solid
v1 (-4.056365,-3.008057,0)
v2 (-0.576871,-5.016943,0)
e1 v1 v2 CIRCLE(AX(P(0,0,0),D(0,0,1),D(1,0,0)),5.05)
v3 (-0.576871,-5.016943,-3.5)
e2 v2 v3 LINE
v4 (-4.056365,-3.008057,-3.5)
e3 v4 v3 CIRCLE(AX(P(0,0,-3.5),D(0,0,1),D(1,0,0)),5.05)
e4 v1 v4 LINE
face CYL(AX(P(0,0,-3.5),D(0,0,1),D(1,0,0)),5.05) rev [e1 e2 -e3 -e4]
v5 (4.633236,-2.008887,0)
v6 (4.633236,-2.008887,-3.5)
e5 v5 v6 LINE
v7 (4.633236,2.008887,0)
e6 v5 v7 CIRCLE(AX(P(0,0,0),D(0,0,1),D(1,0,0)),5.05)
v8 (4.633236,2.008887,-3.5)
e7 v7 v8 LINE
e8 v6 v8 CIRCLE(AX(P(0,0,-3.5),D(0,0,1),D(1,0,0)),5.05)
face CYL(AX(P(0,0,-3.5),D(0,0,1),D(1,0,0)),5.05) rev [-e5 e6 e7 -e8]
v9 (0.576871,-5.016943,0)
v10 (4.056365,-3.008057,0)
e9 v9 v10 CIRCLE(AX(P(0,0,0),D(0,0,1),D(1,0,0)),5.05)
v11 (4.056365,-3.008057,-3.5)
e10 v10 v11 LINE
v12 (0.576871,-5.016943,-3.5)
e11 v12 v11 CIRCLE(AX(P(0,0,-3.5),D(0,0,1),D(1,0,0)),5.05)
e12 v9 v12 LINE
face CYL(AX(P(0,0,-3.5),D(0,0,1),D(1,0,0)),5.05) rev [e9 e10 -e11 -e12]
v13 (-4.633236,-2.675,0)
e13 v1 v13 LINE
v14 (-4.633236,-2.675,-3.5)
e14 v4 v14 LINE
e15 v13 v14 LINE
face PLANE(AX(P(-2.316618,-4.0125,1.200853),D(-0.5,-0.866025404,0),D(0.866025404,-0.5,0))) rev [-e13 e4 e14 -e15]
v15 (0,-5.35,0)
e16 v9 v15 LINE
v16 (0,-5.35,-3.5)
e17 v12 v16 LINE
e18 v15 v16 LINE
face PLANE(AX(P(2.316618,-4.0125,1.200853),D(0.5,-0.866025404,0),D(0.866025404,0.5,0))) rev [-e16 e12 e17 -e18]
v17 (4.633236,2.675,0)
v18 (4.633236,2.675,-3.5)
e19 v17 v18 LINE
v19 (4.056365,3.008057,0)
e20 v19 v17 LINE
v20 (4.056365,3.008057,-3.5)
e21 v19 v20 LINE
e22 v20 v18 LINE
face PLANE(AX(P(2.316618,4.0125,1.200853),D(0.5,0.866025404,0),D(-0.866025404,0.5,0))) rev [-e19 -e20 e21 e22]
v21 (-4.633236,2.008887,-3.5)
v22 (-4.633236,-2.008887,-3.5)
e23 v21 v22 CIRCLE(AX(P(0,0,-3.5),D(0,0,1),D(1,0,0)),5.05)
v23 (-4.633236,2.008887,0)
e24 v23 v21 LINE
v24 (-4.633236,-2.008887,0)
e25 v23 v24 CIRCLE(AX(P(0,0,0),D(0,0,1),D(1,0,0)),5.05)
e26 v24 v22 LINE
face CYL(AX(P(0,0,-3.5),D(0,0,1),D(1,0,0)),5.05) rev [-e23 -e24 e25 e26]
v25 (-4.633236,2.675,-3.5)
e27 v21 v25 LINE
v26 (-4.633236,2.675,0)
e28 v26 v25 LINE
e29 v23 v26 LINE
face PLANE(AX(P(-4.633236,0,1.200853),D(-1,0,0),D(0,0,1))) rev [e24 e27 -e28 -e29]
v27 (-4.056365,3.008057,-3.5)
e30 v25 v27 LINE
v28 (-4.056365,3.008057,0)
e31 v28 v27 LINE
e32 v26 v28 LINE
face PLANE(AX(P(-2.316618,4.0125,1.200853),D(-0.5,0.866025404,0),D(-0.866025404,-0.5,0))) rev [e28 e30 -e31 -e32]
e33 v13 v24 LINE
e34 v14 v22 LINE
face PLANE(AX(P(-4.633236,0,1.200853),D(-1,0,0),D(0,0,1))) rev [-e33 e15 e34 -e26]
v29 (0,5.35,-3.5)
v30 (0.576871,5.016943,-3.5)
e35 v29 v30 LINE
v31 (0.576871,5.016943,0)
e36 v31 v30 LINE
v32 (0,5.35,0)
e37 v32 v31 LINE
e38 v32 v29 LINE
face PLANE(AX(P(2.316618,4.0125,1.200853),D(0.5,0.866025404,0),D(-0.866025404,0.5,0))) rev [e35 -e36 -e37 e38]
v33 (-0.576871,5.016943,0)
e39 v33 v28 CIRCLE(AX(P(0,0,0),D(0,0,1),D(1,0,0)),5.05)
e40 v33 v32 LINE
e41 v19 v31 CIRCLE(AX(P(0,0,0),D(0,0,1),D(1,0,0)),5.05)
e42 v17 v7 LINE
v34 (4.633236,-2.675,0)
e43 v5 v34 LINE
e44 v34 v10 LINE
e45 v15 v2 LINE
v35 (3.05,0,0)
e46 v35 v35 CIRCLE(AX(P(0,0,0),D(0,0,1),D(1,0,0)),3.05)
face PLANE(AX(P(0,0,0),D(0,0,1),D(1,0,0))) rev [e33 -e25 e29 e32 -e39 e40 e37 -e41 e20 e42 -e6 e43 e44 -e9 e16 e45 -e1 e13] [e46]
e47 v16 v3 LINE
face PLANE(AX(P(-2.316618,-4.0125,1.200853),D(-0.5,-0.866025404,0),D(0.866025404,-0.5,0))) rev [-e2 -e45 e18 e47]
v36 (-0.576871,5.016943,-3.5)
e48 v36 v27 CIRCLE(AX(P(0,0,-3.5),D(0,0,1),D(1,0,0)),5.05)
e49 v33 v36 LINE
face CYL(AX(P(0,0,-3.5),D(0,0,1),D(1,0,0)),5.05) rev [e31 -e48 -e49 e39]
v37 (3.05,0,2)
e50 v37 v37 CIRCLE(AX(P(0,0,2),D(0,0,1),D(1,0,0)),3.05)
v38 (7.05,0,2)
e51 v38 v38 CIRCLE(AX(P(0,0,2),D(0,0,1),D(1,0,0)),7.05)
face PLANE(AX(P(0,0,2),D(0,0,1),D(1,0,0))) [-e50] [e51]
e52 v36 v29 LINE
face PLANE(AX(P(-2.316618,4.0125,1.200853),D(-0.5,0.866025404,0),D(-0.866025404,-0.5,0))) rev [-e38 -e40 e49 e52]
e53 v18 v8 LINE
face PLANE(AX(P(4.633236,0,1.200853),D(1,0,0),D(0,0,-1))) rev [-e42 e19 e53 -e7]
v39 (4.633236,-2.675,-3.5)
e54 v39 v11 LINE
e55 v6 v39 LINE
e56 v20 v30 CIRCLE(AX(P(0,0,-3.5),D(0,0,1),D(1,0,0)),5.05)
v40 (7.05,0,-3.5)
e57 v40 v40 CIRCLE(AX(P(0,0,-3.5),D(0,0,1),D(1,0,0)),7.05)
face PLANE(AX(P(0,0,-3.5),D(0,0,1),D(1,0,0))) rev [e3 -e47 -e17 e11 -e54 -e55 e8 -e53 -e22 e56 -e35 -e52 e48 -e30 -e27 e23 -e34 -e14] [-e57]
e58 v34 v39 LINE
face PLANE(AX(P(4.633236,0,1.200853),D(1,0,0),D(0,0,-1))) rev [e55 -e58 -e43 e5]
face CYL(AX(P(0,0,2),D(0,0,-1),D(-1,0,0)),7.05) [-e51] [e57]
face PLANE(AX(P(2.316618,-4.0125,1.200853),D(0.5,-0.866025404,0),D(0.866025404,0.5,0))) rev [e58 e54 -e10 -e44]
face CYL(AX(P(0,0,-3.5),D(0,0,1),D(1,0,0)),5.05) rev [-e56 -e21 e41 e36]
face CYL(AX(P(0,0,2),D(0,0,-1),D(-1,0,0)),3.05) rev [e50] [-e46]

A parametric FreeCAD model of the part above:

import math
import FreeCAD as App
import Part
import Sketcher
from FreeCAD import Vector
Q = App.Units.Quantity

doc = App.newDocument("Part")
body = doc.addObject("PartDesign::Body", "Body")

sketch1 = body.newObject("Sketcher::SketchObject", "Sketch")
sketch1.AttachmentSupport = (doc.getObject("XY_Plane"), [""])
sketch1.MapMode = "FlatFace"
sketch1.addGeometry(Part.Circle(Vector(0, 0, 0), Vector(0, 0, 1), 7.05), False)
sketch1.addGeometry(Part.Circle(Vector(0, 0, 0), Vector(0, 0, 1), 3.05), False)
sketch1.addConstraint(Sketcher.Constraint("Coincident", 0, 3, -1, 1))
sketch1.addConstraint(Sketcher.Constraint("Coincident", 1, 3, -1, 1))
sketch1.addConstraint(Sketcher.Constraint("Diameter", 0, 14.1))
sketch1.addConstraint(Sketcher.Constraint("Diameter", 1, 6.1))
pad1 = body.newObject("PartDesign::Pad", "Pad")
pad1.Profile = sketch1
pad1.Length = 2

sketch2 = body.newObject("Sketcher::SketchObject", "Sketch001")
sketch2.AttachmentSupport = (doc.getObject("XY_Plane"), [""])
sketch2.MapMode = "FlatFace"
sketch2.AttachmentOffset = App.Placement(Vector(0, 0, -3.5), App.Rotation())
sketch2.addGeometry(Part.Circle(Vector(0, 0, 0), Vector(0, 0, 1), 7.05), False)
sketch2.addGeometry(Part.Circle(Vector(0, 0, 0), Vector(0, 0, 1), 5.05), False)
sketch2.addConstraint(Sketcher.Constraint("Coincident", 0, 3, -1, 1))
sketch2.addConstraint(Sketcher.Constraint("Coincident", 1, 3, -1, 1))
sketch2.addConstraint(Sketcher.Constraint("Diameter", 0, 14.1))
sketch2.addConstraint(Sketcher.Constraint("Diameter", 1, 10.1))
pad2 = body.newObject("PartDesign::Pad", "Pad001")
pad2.Profile = sketch2
pad2.Length = 3.5

sketch3 = body.newObject("Sketcher::SketchObject", "Sketch002")
sketch3.AttachmentSupport = (doc.getObject("XY_Plane"), [""])
sketch3.MapMode = "FlatFace"
sketch3.AttachmentOffset = App.Placement(Vector(0, 0, -3.5), App.Rotation())
sketch3.addGeometry(Part.LineSegment(Vector(-0.576871, 5.016943, 0), Vector(0, 5.35, 0)), False)
sketch3.addGeometry(Part.LineSegment(Vector(0, 5.35, 0), Vector(0.576871, 5.016943, 0)), False)
sketch3.addGeometry(Part.ArcOfCircle(Part.Circle(Vector(0, 0, 0), Vector(0, 0, 1), 5.05), math.radians(83.440675), math.radians(96.559325)), False)
sketch3.addGeometry(Part.LineSegment(Vector(-4.633236, 2.675, 0), Vector(-4.056365, 3.008057, 0)), False)
sketch3.addGeometry(Part.ArcOfCircle(Part.Circle(Vector(0, 0, 0), Vector(0, 0, 1), 5.05), math.radians(143.440675), math.radians(156.559326)), False)
sketch3.addGeometry(Part.LineSegment(Vector(-4.633236, 2.008887, 0), Vector(-4.633236, 2.675, 0)), False)
sketch3.addGeometry(Part.ArcOfCircle(Part.Circle(Vector(0, 0, 0), Vector(0, 0, 1), 5.05), math.radians(23.440674), math.radians(36.559325)), False)
sketch3.addGeometry(Part.LineSegment(Vector(4.056365, 3.008057, 0), Vector(4.633236, 2.675, 0)), False)
sketch3.addGeometry(Part.LineSegment(Vector(4.633236, 2.675, 0), Vector(4.633236, 2.008887, 0)), False)
sketch3.addGeometry(Part.ArcOfCircle(Part.Circle(Vector(0, 0, 0), Vector(0, 0, 1), 5.05), math.radians(-36.559325), math.radians(-23.440674)), False)
sketch3.addGeometry(Part.LineSegment(Vector(4.633236, -2.008887, 0), Vector(4.633236, -2.675, 0)), False)
sketch3.addGeometry(Part.LineSegment(Vector(4.633236, -2.675, 0), Vector(4.056365, -3.008057, 0)), False)
sketch3.addGeometry(Part.ArcOfCircle(Part.Circle(Vector(0, 0, 0), Vector(0, 0, 1), 5.05), math.radians(-96.559325), math.radians(-83.440675)), False)
sketch3.addGeometry(Part.LineSegment(Vector(0.576871, -5.016943, 0), Vector(0, -5.35, 0)), False)
sketch3.addGeometry(Part.LineSegment(Vector(0, -5.35, 0), Vector(-0.576871, -5.016943, 0)), False)
sketch3.addGeometry(Part.LineSegment(Vector(-4.633236, -2.675, 0), Vector(-4.633236, -2.008887, 0)), False)
sketch3.addGeometry(Part.ArcOfCircle(Part.Circle(Vector(0, 0, 0), Vector(0, 0, 1), 5.05), math.radians(-156.559326), math.radians(-143.440675)), False)
sketch3.addGeometry(Part.LineSegment(Vector(-4.056365, -3.008057, 0), Vector(-4.633236, -2.675, 0)), False)
sketch3.addConstraint(Sketcher.Constraint("Coincident", 0, 2, 1, 1))
sketch3.addConstraint(Sketcher.Constraint("Coincident", 1, 2, 2, 1))
sketch3.addConstraint(Sketcher.Constraint("Coincident", 2, 2, 0, 1))
sketch3.addConstraint(Sketcher.Constraint("Coincident", 3, 2, 4, 1))
sketch3.addConstraint(Sketcher.Constraint("Coincident", 4, 2, 5, 1))
sketch3.addConstraint(Sketcher.Constraint("Coincident", 5, 2, 3, 1))
sketch3.addConstraint(Sketcher.Constraint("Coincident", 6, 2, 7, 1))
sketch3.addConstraint(Sketcher.Constraint("Coincident", 7, 2, 8, 1))
sketch3.addConstraint(Sketcher.Constraint("Coincident", 8, 2, 6, 1))
sketch3.addConstraint(Sketcher.Constraint("Coincident", 9, 2, 10, 1))
sketch3.addConstraint(Sketcher.Constraint("Coincident", 10, 2, 11, 1))
sketch3.addConstraint(Sketcher.Constraint("Coincident", 11, 2, 9, 1))
sketch3.addConstraint(Sketcher.Constraint("Coincident", 12, 2, 13, 1))
sketch3.addConstraint(Sketcher.Constraint("Coincident", 13, 2, 14, 1))
sketch3.addConstraint(Sketcher.Constraint("Coincident", 14, 2, 12, 1))
sketch3.addConstraint(Sketcher.Constraint("Coincident", 15, 2, 16, 1))
sketch3.addConstraint(Sketcher.Constraint("Coincident", 16, 2, 17, 1))
sketch3.addConstraint(Sketcher.Constraint("Coincident", 17, 2, 15, 1))
sketch3.addConstraint(Sketcher.Constraint("Vertical", 5))
sketch3.addConstraint(Sketcher.Constraint("Vertical", 8))
sketch3.addConstraint(Sketcher.Constraint("Vertical", 10))
sketch3.addConstraint(Sketcher.Constraint("Vertical", 15))
sketch3.addConstraint(Sketcher.Constraint("Coincident", 2, 3, -1, 1))
sketch3.addConstraint(Sketcher.Constraint("Coincident", 4, 3, -1, 1))
sketch3.addConstraint(Sketcher.Constraint("Coincident", 6, 3, -1, 1))
sketch3.addConstraint(Sketcher.Constraint("Coincident", 9, 3, -1, 1))
sketch3.addConstraint(Sketcher.Constraint("Coincident", 12, 3, -1, 1))
sketch3.addConstraint(Sketcher.Constraint("Coincident", 16, 3, -1, 1))
sketch3.addConstraint(Sketcher.Constraint("Equal", 2, 4))
sketch3.addConstraint(Sketcher.Constraint("Equal", 4, 6))
sketch3.addConstraint(Sketcher.Constraint("Equal", 6, 9))
sketch3.addConstraint(Sketcher.Constraint("Equal", 9, 12))
sketch3.addConstraint(Sketcher.Constraint("Equal", 12, 16))
sketch3.addConstraint(Sketcher.Constraint("Symmetric", 5, 2, 10, 2, -1, 1))
sketch3.addConstraint(Sketcher.Constraint("Symmetric", 0, 2, 13, 2, -1, 1))
sketch3.addConstraint(Sketcher.Constraint("Symmetric", 7, 2, 17, 2, -1, 1))
sketch3.addConstraint(Sketcher.Constraint("Symmetric", 5, 2, 7, 2, -2))
sketch3.addConstraint(Sketcher.Constraint("PointOnObject", 0, 2, -2))
sketch3.addConstraint(Sketcher.Constraint("Parallel", 0, 3))
sketch3.addConstraint(Sketcher.Constraint("Parallel", 1, 7))
sketch3.addConstraint(Sketcher.Constraint("Parallel", 3, 11))
sketch3.addConstraint(Sketcher.Constraint("Parallel", 11, 13))
sketch3.addConstraint(Sketcher.Constraint("Parallel", 7, 14))
sketch3.addConstraint(Sketcher.Constraint("Parallel", 14, 17))
sketch3.addConstraint(Sketcher.Constraint("Horizontal", 1, 2, 2, 2))
sketch3.addConstraint(Sketcher.Constraint("Equal", 1, 3))
sketch3.addConstraint(Sketcher.Constraint("Angle", 0, Q("30 deg")))
sketch3.addConstraint(Sketcher.Constraint("Radius", 2, 5.05))
sketch3.addConstraint(Sketcher.Constraint("DistanceY", -1, 1, 0, 2, 5.35))
sketch3.addConstraint(Sketcher.Constraint("DistanceY", -1, 1, 5, 2, 2.675))
pocket1 = body.newObject("PartDesign::Pocket", "Pocket")
pocket1.Profile = sketch3
pocket1.Length = 3.5
pocket1.Reversed = True

doc.recompute()
